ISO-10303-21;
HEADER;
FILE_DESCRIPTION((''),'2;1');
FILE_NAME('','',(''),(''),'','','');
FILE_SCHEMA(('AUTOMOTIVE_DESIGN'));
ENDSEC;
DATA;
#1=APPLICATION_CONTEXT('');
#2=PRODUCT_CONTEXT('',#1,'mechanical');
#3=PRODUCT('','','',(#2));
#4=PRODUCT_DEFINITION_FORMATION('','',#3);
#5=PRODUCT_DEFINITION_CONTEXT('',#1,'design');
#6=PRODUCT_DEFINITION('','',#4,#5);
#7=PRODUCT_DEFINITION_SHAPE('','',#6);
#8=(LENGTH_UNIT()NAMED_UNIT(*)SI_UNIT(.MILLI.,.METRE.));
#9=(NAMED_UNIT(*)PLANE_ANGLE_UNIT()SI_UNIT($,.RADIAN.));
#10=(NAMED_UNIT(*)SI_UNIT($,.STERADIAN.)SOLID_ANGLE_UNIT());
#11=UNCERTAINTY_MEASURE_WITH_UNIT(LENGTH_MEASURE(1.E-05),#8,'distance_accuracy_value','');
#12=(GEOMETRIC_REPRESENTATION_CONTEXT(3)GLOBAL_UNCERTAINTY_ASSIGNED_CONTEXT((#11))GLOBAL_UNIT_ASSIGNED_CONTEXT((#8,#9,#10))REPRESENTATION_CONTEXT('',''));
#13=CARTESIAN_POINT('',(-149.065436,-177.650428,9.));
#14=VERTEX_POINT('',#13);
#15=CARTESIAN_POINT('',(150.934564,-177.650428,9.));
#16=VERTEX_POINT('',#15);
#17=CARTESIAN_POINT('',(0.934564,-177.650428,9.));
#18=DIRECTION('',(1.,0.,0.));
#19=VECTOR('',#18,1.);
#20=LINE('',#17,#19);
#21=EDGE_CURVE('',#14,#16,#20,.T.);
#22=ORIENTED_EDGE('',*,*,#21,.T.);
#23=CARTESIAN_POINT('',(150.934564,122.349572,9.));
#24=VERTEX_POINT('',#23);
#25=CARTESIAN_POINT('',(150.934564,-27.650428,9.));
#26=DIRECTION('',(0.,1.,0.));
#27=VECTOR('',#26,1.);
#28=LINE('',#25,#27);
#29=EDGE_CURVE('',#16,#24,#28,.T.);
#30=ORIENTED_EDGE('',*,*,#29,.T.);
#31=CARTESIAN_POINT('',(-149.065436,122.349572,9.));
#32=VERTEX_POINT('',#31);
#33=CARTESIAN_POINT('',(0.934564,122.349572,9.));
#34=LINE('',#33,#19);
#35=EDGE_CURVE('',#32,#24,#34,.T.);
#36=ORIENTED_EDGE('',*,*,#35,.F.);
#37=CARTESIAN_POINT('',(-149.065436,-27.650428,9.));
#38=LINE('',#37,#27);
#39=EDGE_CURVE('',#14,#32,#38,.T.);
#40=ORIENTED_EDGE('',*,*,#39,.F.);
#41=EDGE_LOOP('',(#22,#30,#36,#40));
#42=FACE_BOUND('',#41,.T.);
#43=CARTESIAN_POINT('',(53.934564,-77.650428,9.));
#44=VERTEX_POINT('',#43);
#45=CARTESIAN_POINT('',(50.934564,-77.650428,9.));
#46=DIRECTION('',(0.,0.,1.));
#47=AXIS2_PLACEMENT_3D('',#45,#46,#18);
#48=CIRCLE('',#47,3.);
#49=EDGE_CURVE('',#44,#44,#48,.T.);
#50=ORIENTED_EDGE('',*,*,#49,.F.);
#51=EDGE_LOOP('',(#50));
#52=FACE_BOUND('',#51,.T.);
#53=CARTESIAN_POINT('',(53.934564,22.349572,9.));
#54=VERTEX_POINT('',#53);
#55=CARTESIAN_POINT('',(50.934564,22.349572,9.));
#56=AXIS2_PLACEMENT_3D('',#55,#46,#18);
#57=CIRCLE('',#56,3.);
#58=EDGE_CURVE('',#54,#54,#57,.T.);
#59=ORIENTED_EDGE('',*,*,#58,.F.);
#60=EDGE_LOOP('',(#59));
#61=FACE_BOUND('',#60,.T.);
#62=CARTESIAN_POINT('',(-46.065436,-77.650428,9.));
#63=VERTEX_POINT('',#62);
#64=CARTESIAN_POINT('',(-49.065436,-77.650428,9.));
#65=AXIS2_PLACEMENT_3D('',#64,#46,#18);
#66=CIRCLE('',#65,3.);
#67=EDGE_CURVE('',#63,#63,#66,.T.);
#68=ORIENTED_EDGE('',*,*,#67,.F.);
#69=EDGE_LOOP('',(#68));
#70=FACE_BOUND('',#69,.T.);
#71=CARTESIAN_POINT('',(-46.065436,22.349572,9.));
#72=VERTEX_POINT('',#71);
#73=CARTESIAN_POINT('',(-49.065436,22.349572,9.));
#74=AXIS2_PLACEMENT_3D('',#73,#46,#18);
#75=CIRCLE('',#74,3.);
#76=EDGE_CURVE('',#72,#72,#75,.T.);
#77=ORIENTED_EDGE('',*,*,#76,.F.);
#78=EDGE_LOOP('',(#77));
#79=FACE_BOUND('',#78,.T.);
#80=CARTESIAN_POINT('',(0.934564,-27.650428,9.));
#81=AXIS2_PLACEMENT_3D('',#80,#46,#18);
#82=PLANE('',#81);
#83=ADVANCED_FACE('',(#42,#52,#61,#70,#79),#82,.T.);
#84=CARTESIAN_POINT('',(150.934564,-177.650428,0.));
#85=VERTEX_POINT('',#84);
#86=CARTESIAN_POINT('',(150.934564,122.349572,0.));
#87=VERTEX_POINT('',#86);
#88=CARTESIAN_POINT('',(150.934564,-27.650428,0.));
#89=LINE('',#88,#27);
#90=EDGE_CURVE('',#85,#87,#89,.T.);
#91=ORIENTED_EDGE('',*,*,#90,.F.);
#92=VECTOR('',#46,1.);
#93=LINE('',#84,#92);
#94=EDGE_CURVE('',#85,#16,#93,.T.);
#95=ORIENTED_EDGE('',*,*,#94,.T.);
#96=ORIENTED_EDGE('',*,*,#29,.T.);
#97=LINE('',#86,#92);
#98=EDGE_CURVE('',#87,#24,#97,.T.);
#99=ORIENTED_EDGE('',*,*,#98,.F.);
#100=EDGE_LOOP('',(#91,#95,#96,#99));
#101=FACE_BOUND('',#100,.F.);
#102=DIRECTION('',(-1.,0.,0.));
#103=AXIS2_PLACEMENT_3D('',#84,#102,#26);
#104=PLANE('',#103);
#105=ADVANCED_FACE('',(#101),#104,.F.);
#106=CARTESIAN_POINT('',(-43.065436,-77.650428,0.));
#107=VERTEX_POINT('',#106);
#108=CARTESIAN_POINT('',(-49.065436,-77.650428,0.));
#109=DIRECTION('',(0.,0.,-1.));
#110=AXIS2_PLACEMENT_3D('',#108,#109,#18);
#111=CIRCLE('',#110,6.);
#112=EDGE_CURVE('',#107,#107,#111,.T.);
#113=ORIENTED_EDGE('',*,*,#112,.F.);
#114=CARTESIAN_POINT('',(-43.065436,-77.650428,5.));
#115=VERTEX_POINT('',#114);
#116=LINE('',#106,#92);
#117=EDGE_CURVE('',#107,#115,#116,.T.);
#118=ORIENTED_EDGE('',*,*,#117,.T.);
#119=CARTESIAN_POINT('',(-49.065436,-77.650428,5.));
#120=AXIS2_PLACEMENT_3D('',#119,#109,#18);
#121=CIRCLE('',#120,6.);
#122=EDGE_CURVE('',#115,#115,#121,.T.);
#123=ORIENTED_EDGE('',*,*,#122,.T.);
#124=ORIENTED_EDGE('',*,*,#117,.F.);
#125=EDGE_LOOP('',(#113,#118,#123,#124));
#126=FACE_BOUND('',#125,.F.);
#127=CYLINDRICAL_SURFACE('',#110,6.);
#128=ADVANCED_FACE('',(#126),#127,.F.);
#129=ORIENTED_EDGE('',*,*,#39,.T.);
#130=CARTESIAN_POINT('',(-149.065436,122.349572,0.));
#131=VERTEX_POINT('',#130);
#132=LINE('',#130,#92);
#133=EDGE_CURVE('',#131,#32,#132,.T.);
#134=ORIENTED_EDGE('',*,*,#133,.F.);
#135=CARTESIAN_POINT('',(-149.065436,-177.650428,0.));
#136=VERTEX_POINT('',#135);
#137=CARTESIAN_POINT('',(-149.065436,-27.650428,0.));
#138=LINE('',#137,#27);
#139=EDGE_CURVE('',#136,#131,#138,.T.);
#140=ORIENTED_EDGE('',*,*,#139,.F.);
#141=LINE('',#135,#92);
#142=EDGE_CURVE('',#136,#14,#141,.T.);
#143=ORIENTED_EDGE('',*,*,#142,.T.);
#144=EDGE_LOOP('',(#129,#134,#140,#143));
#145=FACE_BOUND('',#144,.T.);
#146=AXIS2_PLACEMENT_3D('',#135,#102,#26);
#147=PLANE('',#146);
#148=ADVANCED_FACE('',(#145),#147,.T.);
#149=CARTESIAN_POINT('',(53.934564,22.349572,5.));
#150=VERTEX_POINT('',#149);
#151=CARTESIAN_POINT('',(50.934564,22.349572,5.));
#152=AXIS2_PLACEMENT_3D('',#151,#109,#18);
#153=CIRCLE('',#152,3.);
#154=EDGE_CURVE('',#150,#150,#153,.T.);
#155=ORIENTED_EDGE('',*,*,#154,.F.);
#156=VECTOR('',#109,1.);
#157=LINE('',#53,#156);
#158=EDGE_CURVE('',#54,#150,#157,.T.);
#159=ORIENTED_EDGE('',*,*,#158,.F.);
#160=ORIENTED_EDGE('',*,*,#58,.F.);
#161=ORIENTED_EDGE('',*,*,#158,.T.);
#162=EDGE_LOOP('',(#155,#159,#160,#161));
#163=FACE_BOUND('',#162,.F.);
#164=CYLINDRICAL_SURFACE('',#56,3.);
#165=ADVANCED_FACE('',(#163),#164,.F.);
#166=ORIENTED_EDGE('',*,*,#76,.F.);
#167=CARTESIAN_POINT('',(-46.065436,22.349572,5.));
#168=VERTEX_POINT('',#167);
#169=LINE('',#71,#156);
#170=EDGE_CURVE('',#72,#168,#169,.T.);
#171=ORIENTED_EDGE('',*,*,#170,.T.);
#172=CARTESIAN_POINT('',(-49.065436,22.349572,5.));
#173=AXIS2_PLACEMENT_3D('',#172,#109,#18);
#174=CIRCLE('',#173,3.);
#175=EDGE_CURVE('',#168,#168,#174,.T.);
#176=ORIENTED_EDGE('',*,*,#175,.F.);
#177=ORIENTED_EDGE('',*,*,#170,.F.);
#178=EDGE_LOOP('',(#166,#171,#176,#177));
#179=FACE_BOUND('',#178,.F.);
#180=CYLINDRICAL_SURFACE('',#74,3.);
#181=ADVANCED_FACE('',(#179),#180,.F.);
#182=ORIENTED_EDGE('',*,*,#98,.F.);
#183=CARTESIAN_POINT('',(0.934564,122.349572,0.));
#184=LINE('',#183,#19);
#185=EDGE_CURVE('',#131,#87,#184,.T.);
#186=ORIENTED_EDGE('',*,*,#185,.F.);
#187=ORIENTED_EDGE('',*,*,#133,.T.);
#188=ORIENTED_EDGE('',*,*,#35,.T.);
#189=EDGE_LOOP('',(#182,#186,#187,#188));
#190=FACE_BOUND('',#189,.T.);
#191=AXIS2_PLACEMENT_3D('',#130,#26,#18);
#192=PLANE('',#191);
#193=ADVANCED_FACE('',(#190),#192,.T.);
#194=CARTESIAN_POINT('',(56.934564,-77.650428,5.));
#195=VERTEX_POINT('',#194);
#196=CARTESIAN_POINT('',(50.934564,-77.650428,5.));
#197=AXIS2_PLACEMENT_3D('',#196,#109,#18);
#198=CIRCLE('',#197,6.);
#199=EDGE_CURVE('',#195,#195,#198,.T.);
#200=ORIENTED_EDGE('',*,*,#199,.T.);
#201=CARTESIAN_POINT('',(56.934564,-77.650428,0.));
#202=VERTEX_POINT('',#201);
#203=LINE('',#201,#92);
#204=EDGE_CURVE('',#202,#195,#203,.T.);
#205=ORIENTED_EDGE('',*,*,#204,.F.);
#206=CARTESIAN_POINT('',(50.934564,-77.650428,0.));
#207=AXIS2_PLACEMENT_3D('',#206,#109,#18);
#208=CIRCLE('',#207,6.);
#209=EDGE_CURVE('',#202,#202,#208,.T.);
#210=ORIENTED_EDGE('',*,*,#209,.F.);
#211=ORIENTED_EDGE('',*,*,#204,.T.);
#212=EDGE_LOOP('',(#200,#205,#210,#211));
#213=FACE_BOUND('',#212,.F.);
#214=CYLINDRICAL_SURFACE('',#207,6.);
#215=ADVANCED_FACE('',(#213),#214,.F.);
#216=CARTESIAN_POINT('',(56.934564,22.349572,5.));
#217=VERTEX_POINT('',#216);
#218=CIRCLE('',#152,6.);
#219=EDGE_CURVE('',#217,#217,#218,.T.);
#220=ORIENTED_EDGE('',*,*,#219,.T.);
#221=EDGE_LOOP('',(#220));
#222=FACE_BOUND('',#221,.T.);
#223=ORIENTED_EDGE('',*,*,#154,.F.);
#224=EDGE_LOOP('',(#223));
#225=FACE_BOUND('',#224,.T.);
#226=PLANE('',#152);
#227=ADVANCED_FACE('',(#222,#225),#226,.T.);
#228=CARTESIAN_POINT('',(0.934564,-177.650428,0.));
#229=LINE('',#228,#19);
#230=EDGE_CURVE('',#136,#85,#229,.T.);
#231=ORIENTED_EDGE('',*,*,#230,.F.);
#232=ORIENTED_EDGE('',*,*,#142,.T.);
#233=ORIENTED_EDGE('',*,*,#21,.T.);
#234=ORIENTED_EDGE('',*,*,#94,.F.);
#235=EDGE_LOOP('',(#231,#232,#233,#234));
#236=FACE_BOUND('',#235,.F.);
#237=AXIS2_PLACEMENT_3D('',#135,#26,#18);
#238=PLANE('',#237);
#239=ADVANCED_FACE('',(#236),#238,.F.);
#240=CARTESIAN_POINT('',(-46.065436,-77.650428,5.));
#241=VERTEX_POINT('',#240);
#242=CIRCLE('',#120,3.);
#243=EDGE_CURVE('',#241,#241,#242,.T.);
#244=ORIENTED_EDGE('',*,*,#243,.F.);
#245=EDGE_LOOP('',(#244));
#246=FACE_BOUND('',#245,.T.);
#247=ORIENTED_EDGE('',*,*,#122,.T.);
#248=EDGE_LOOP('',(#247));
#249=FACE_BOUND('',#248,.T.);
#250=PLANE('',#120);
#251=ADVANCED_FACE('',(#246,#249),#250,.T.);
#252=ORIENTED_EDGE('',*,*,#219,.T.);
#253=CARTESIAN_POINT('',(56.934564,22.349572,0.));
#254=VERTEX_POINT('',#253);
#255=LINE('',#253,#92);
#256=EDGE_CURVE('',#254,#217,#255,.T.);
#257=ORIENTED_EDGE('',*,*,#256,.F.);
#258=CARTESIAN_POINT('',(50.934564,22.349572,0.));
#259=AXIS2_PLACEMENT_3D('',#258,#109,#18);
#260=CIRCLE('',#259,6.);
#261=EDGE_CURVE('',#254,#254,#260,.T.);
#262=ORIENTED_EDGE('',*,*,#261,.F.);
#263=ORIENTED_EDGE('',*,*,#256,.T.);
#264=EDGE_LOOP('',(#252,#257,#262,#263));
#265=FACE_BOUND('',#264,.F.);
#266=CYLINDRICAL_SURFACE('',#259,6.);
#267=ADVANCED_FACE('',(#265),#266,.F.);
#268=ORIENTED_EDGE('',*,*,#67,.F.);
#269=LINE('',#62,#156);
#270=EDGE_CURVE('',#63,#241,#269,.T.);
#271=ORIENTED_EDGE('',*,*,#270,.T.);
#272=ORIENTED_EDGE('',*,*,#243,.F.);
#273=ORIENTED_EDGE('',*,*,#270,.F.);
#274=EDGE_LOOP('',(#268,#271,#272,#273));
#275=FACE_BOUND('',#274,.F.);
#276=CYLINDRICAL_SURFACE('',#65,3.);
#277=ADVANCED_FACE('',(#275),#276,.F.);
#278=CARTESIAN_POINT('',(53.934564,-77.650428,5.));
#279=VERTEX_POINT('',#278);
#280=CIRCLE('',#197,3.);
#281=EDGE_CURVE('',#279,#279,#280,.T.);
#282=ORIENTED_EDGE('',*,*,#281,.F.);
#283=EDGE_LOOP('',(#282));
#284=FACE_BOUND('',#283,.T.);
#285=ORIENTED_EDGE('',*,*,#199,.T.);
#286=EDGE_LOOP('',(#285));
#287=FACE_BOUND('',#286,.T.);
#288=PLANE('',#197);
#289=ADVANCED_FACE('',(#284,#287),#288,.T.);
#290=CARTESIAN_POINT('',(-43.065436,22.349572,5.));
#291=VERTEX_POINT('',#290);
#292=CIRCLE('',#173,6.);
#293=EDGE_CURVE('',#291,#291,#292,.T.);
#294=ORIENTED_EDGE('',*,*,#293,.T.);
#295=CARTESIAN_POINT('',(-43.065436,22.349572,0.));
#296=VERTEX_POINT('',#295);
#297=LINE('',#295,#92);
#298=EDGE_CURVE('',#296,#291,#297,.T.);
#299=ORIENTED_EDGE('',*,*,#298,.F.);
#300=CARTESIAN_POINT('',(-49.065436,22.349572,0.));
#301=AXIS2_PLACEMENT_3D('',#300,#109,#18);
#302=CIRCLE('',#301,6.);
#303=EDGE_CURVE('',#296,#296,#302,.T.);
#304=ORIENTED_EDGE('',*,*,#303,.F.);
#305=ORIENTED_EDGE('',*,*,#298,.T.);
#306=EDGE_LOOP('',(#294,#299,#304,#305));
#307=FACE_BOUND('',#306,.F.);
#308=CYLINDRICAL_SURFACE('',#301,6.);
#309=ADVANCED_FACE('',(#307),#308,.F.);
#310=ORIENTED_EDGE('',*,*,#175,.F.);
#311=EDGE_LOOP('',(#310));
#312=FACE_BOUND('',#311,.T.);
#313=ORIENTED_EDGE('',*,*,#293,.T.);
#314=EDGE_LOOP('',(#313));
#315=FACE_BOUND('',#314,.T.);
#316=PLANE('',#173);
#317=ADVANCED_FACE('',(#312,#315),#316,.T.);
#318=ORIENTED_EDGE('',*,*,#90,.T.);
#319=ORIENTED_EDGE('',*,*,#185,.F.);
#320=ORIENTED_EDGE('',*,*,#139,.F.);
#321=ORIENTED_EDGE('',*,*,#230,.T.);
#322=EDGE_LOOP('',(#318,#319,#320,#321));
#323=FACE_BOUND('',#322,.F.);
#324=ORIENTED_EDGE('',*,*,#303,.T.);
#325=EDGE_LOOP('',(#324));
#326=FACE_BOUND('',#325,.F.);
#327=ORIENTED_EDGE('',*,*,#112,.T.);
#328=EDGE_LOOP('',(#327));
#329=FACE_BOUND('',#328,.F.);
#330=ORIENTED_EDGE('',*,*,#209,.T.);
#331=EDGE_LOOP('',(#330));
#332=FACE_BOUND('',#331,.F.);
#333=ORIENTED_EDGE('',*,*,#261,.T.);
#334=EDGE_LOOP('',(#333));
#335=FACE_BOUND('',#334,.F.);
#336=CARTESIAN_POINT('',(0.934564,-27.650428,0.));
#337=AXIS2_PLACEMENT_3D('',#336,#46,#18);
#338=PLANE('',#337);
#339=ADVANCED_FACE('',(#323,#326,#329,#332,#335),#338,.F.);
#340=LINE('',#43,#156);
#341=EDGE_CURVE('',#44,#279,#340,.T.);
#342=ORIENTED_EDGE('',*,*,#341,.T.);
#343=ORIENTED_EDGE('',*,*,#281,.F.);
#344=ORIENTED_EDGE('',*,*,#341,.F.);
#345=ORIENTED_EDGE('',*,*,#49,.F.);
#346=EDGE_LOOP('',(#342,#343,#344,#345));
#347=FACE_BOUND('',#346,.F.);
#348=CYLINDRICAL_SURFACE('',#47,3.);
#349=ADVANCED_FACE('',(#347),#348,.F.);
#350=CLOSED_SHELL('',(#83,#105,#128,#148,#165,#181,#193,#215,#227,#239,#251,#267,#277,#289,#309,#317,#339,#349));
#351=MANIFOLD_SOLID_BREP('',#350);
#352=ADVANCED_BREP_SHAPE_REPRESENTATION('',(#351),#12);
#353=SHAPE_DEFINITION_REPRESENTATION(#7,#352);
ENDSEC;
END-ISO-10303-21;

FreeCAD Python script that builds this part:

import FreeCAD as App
import Part
import Sketcher
from FreeCAD import Vector


def add_polygon(sketch, points):
    """Adds a closed chain of lines whose ends are joined by coincident constraints."""
    first, n = sketch.GeometryCount, len(points)
    for a, b in zip(points, points[1:] + points[:1]):
        sketch.addGeometry(Part.LineSegment(App.Vector(*a, 0), App.Vector(*b, 0)), False)
    for i in range(n):
        sketch.addConstraint(Sketcher.Constraint("Coincident", first + i, 2, first + (i + 1) % n, 1))

doc = App.newDocument("Part")
body = doc.addObject("PartDesign::Body", "Body")

# Sketch on XY plane
sketch1 = doc.addObject("Sketcher::SketchObject", "Sketch")
body.addObject(sketch1)
sketch1.AttachmentSupport = (doc.XY_Plane, [""])
sketch1.MapMode = "FlatFace"
add_polygon(sketch1, [(-149, 122), (-149, -178), (151, -178), (151, 122)])  # lines 0-3
sketch1.addConstraint([
    Sketcher.Constraint("Vertical", 0),
    Sketcher.Constraint("Horizontal", 1),
    Sketcher.Constraint("Vertical", 2),
    Sketcher.Constraint("Horizontal", 3),
    Sketcher.Constraint("Equal", 3, 0),
    Sketcher.Constraint("DistanceX", 1, 1, 1, 2, 300.0),
    Sketcher.Constraint("DistanceY", 0, 2, -1, 1, 177.650428),
    Sketcher.Constraint("DistanceX", 0, 2, -1, 1, 149.065436),
])
pad1 = doc.addObject("PartDesign::Pad", "Pad")
body.addObject(pad1)
pad1.Profile = sketch1
pad1.Length = 9

# Sketch on XY plane
sketch2 = doc.addObject("Sketcher::SketchObject", "Sketch001")
body.addObject(sketch2)
sketch2.AttachmentSupport = (doc.XY_Plane, [""])
sketch2.MapMode = "FlatFace"
sketch2.AttachmentOffset = App.Placement(Vector(0, 0, 9), App.Rotation())
sketch2.addGeometry([
    Part.Circle(Vector(-49.1, 22.3, 0), Vector(0, 0, 1), 3),
    Part.Circle(Vector(-49.1, -77.7, 0), Vector(0, 0, 1), 3),
    Part.Circle(Vector(50.9, -77.7, 0), Vector(0, 0, 1), 3),
    Part.Circle(Vector(50.9, 22.3, 0), Vector(0, 0, 1), 3),
], False)
sketch2.addConstraint([
    Sketcher.Constraint("Equal", 0, 1),
    Sketcher.Constraint("Equal", 1, 2),
    Sketcher.Constraint("Equal", 2, 3),
    Sketcher.Constraint("Horizontal", 1, 3, 2, 3),
    Sketcher.Constraint("Horizontal", 0, 3, 3, 3),
    Sketcher.Constraint("Vertical", 0, 3, 1, 3),
    Sketcher.Constraint("Vertical", 2, 3, 3, 3),
    Sketcher.Constraint("Diameter", 0, 6.0),
    Sketcher.Constraint("DistanceY", 1, 3, 0, 3, 100.0),
    Sketcher.Constraint("DistanceX", 1, 3, 2, 3, 100.0),
    Sketcher.Constraint("DistanceY", -1, 1, 0, 3, 22.349572),
    Sketcher.Constraint("DistanceX", 0, 3, -1, 1, 49.065436),
])
pocket1 = doc.addObject("PartDesign::Pocket", "Pocket")
body.addObject(pocket1)
pocket1.Profile = sketch2
pocket1.Type = "ThroughAll"

# Sketch on XY plane
sketch3 = doc.addObject("Sketcher::SketchObject", "Sketch002")
body.addObject(sketch3)
sketch3.AttachmentSupport = (doc.XY_Plane, [""])
sketch3.MapMode = "FlatFace"
sketch3.addGeometry([
    Part.Circle(Vector(-49.1, -77.7, 0), Vector(0, 0, 1), 6),  # 0
    Part.Circle(Vector(-49.1, -77.7, 0), Vector(0, 0, 1), 3),  # 1
    Part.Circle(Vector(50.9, -77.7, 0), Vector(0, 0, 1), 6),  # 2
    Part.Circle(Vector(50.9, -77.7, 0), Vector(0, 0, 1), 3),  # 3
    Part.Circle(Vector(-49.1, 22.3, 0), Vector(0, 0, 1), 6),  # 4
    Part.Circle(Vector(-49.1, 22.3, 0), Vector(0, 0, 1), 3),  # 5
    Part.Circle(Vector(50.9, 22.3, 0), Vector(0, 0, 1), 6),  # 6
    Part.Circle(Vector(50.9, 22.3, 0), Vector(0, 0, 1), 3),  # 7
], False)
sketch3.addConstraint([
    Sketcher.Constraint("Coincident", 1, 3, 0, 3),
    Sketcher.Constraint("Coincident", 3, 3, 2, 3),
    Sketcher.Constraint("Coincident", 5, 3, 4, 3),
    Sketcher.Constraint("Coincident", 7, 3, 6, 3),
    Sketcher.Constraint("Equal", 0, 2),
    Sketcher.Constraint("Equal", 1, 3),
    Sketcher.Constraint("Equal", 2, 4),
    Sketcher.Constraint("Equal", 3, 5),
    Sketcher.Constraint("Equal", 4, 6),
    Sketcher.Constraint("Equal", 5, 7),
    Sketcher.Constraint("Horizontal", 1, 3, 2, 3),
    Sketcher.Constraint("Horizontal", 5, 3, 6, 3),
    Sketcher.Constraint("Vertical", 1, 3, 4, 3),
    Sketcher.Constraint("Vertical", 3, 3, 6, 3),
    Sketcher.Constraint("Diameter", 0, 12.0),
    Sketcher.Constraint("Diameter", 1, 6.0),
    Sketcher.Constraint("DistanceX", 0, 3, 2, 3, 100.0),
    Sketcher.Constraint("DistanceY", 0, 3, 4, 3, 100.0),
    Sketcher.Constraint("DistanceY", 0, 3, -1, 1, 77.650428),
    Sketcher.Constraint("DistanceX", 0, 3, -1, 1, 49.065436),
])
pocket2 = doc.addObject("PartDesign::Pocket", "Pocket001")
body.addObject(pocket2)
pocket2.Profile = sketch3
pocket2.Length = 5
pocket2.Reversed = True

doc.recompute()
